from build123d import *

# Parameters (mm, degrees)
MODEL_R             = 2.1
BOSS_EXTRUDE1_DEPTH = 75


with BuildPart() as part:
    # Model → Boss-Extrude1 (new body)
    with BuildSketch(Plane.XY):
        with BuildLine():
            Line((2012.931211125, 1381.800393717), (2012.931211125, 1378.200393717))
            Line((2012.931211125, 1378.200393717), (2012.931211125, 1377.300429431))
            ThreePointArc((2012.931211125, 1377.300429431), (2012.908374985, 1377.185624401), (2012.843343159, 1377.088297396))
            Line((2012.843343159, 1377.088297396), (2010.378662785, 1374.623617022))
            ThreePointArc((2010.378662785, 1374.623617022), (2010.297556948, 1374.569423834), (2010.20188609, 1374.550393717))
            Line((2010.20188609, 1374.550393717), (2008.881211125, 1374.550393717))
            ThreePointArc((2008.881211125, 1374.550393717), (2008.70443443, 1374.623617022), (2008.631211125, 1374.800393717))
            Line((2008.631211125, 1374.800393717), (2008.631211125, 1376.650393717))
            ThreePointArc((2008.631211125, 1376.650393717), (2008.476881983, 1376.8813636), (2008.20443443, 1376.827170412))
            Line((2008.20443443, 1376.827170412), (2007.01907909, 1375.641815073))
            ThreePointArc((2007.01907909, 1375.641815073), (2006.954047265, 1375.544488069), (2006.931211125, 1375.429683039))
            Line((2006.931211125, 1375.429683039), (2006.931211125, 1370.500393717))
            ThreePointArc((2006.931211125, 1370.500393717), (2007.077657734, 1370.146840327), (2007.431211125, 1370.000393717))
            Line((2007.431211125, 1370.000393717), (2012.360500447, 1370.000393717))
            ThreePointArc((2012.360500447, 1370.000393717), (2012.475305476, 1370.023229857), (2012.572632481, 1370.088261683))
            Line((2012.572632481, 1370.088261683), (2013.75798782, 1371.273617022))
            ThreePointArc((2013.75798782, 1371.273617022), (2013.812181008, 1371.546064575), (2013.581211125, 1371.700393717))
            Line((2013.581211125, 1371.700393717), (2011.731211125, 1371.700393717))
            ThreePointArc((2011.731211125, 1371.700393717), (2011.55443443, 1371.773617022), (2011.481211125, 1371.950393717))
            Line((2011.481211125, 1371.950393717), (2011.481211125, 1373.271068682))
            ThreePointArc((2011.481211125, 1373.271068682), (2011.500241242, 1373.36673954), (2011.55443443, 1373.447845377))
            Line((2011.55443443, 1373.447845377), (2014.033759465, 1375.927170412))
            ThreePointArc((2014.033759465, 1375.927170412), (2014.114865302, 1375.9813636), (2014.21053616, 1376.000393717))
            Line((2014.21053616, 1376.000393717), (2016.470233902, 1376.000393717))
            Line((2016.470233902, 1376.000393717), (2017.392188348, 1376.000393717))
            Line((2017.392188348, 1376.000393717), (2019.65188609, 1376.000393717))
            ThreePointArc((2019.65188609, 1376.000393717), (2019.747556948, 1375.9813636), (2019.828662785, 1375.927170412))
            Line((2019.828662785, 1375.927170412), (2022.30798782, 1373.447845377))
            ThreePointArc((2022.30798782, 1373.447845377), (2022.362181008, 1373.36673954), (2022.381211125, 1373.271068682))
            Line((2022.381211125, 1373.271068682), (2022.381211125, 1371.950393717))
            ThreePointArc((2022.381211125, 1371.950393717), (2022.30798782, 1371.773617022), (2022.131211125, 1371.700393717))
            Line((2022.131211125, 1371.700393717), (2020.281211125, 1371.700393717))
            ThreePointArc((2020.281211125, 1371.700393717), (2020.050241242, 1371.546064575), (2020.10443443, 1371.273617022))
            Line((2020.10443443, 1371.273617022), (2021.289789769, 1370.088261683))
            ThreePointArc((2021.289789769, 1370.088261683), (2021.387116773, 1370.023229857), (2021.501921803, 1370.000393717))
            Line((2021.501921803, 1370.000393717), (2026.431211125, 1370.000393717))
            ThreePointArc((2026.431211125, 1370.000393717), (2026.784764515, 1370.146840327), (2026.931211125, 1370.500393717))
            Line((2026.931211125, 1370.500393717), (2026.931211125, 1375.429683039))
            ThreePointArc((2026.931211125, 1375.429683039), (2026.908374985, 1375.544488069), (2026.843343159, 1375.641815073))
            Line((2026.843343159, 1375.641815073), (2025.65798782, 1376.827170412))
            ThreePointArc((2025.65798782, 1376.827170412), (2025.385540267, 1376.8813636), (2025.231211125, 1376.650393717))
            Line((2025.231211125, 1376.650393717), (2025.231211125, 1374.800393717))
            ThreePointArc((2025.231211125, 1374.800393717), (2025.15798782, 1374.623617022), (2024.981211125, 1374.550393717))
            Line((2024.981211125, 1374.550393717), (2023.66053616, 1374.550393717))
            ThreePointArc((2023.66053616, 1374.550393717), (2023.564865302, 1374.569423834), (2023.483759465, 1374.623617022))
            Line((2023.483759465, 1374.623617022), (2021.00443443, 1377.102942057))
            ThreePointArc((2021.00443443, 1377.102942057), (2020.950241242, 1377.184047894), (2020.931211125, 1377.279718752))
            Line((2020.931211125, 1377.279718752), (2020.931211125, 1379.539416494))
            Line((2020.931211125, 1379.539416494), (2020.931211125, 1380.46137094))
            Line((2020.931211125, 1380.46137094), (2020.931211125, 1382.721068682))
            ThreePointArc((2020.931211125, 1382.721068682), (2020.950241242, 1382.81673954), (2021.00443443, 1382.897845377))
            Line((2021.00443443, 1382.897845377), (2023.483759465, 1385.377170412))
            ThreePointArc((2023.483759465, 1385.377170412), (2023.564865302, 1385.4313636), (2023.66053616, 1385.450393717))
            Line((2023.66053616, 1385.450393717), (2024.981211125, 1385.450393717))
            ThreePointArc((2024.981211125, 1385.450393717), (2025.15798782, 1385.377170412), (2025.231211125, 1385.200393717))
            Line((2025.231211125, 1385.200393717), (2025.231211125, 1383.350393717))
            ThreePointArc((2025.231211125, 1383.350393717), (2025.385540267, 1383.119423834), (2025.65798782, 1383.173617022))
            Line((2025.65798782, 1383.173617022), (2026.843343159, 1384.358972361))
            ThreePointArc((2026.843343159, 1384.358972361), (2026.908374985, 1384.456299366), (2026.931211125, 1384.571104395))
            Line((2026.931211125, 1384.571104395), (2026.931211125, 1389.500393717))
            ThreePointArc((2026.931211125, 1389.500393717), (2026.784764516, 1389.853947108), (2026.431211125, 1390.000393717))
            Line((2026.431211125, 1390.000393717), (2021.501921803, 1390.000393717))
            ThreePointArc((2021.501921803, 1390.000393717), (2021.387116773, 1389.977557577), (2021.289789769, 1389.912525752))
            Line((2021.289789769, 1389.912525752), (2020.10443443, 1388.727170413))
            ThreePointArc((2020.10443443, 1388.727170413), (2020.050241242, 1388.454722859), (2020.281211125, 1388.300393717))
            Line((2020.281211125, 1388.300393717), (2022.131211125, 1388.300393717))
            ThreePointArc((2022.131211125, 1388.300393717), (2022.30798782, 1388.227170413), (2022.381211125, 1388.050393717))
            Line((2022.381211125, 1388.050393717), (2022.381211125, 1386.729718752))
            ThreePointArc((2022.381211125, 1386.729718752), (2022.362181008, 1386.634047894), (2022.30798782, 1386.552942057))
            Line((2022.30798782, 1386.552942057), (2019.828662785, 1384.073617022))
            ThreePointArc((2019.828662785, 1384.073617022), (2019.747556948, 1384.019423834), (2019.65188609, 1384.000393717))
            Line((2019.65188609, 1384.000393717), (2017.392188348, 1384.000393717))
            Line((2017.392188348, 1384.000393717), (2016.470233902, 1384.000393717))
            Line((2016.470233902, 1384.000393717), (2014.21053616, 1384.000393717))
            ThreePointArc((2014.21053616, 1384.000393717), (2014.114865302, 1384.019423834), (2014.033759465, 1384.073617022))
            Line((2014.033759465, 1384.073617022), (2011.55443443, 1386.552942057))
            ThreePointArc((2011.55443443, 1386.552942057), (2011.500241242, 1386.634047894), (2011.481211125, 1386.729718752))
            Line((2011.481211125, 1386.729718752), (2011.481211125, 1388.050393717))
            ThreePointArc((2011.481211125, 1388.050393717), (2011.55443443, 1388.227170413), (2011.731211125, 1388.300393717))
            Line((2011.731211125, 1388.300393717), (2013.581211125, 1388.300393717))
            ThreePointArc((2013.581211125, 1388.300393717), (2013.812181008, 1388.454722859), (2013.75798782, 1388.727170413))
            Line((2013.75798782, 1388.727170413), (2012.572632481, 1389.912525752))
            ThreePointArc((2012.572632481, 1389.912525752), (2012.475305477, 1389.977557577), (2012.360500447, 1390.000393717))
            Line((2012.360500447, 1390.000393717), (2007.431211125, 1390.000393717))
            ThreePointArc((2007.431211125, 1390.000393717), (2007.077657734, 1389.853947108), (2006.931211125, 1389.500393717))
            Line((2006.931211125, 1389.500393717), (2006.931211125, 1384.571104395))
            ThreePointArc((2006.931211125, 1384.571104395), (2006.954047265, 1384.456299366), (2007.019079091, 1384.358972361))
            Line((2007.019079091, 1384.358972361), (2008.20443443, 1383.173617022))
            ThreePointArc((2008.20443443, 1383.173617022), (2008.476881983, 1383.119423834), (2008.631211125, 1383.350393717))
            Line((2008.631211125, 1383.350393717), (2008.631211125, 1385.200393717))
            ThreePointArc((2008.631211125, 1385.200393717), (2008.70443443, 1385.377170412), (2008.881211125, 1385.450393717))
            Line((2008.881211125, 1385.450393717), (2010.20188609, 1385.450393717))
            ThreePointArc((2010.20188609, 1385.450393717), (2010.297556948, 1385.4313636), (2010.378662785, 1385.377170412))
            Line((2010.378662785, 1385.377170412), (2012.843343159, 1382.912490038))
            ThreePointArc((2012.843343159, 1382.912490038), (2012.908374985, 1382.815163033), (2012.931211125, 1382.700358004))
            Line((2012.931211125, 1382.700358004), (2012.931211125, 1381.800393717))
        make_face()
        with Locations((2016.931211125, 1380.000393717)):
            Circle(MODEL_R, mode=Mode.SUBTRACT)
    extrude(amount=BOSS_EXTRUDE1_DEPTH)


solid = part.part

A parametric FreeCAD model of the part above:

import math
import FreeCAD as App
import Part
import Sketcher
from FreeCAD import Vector
Q = App.Units.Quantity

doc = App.newDocument("Part")
params = doc.addObject("Spreadsheet::Sheet", "Params")
for row, (alias, value) in enumerate([
    ("sketch1_diameter", "4.2 mm"),
    ("sketch1_radius", "0.3 mm"),
    ("sketch1_radius2", "0.5 mm"),
    ("sketch1_radius3", "0.25 mm"),
    ("sketch1_width", "1.85 mm"),
    ("pad1_length", "75 mm"),
], start=1):
    params.set(f"A{row}", alias)
    params.set(f"B{row}", "=" + value)
    params.setAlias(f"B{row}", alias)

body = doc.addObject("PartDesign::Body", "Body")

sketch1 = body.newObject("Sketcher::SketchObject", "Sketch")
sketch1.AttachmentSupport = (doc.getObject("XY_Plane"), [""])
sketch1.MapMode = "FlatFace"
sketch1.addGeometry(Part.ArcOfCircle(Part.Circle(Vector(2012.631211, 1377.300429, 0), Vector(0, 0, 1), 0.3), math.radians(-45), math.radians(0)), False)
sketch1.addGeometry(Part.LineSegment(Vector(2012.843343, 1377.088297, 0), Vector(2010.378663, 1374.623617, 0)), False)
sketch1.addGeometry(Part.ArcOfCircle(Part.Circle(Vector(2010.201886, 1374.800394, 0), Vector(0, 0, 1), 0.25), math.radians(-90), math.radians(-45)), False)
sketch1.addGeometry(Part.LineSegment(Vector(2010.201886, 1374.550394, 0), Vector(2008.881211, 1374.550394, 0)), False)
sketch1.addGeometry(Part.ArcOfCircle(Part.Circle(Vector(2008.881211, 1374.800394, 0), Vector(0, 0, 1), 0.25), math.radians(-180), math.radians(-90)), False)
sketch1.addGeometry(Part.LineSegment(Vector(2008.631211, 1374.800394, 0), Vector(2008.631211, 1376.650394, 0)), False)
sketch1.addGeometry(Part.ArcOfCircle(Part.Circle(Vector(2008.381211, 1376.650394, 0), Vector(0, 0, 1), 0.25), math.radians(0), math.radians(135)), False)
sketch1.addGeometry(Part.LineSegment(Vector(2008.204434, 1376.82717, 0), Vector(2007.019079, 1375.641815, 0)), False)
sketch1.addGeometry(Part.ArcOfCircle(Part.Circle(Vector(2007.231211, 1375.429683, 0), Vector(0, 0, 1), 0.3), math.radians(135), math.radians(180)), False)
sketch1.addGeometry(Part.LineSegment(Vector(2006.931211, 1375.429683, 0), Vector(2006.931211, 1370.500394, 0)), False)
sketch1.addGeometry(Part.ArcOfCircle(Part.Circle(Vector(2007.431211, 1370.500394, 0), Vector(0, 0, 1), 0.5), math.radians(180), math.radians(270)), False)
sketch1.addGeometry(Part.LineSegment(Vector(2007.431211, 1370.000394, 0), Vector(2012.3605, 1370.000394, 0)), False)
sketch1.addGeometry(Part.ArcOfCircle(Part.Circle(Vector(2012.3605, 1370.300394, 0), Vector(0, 0, 1), 0.3), math.radians(-90), math.radians(-45)), False)
sketch1.addGeometry(Part.LineSegment(Vector(2012.572632, 1370.088262, 0), Vector(2013.757988, 1371.273617, 0)), False)
sketch1.addGeometry(Part.ArcOfCircle(Part.Circle(Vector(2013.581211, 1371.450394, 0), Vector(0, 0, 1), 0.25), math.radians(-45), math.radians(90)), False)
sketch1.addGeometry(Part.LineSegment(Vector(2013.581211, 1371.700394, 0), Vector(2011.731211, 1371.700394, 0)), False)
sketch1.addGeometry(Part.ArcOfCircle(Part.Circle(Vector(2011.731211, 1371.950394, 0), Vector(0, 0, 1), 0.25), math.radians(-180), math.radians(-90)), False)
sketch1.addGeometry(Part.LineSegment(Vector(2011.481211, 1371.950394, 0), Vector(2011.481211, 1373.271069, 0)), False)
sketch1.addGeometry(Part.ArcOfCircle(Part.Circle(Vector(2011.731211, 1373.271069, 0), Vector(0, 0, 1), 0.25), math.radians(135), math.radians(180)), False)
sketch1.addGeometry(Part.LineSegment(Vector(2011.554434, 1373.447845, 0), Vector(2014.033759, 1375.92717, 0)), False)
sketch1.addGeometry(Part.ArcOfCircle(Part.Circle(Vector(2014.210536, 1375.750394, 0), Vector(0, 0, 1), 0.25), math.radians(90), math.radians(135)), False)
sketch1.addGeometry(Part.LineSegment(Vector(2014.210536, 1376.000394, 0), Vector(2019.651886, 1376.000394, 0)), False)
sketch1.addGeometry(Part.ArcOfCircle(Part.Circle(Vector(2019.651886, 1375.750394, 0), Vector(0, 0, 1), 0.25), math.radians(45), math.radians(90)), False)
sketch1.addGeometry(Part.LineSegment(Vector(2019.828663, 1375.92717, 0), Vector(2022.307988, 1373.447845, 0)), False)
sketch1.addGeometry(Part.ArcOfCircle(Part.Circle(Vector(2022.131211, 1373.271069, 0), Vector(0, 0, 1), 0.25), math.radians(0), math.radians(45)), False)
sketch1.addGeometry(Part.LineSegment(Vector(2022.381211, 1373.271069, 0), Vector(2022.381211, 1371.950394, 0)), False)
sketch1.addGeometry(Part.ArcOfCircle(Part.Circle(Vector(2022.131211, 1371.950394, 0), Vector(0, 0, 1), 0.25), math.radians(-90), math.radians(0)), False)
sketch1.addGeometry(Part.LineSegment(Vector(2022.131211, 1371.700394, 0), Vector(2020.281211, 1371.700394, 0)), False)
sketch1.addGeometry(Part.ArcOfCircle(Part.Circle(Vector(2020.281211, 1371.450394, 0), Vector(0, 0, 1), 0.25), math.radians(90), math.radians(225)), False)
sketch1.addGeometry(Part.LineSegment(Vector(2020.104434, 1371.273617, 0), Vector(2021.28979, 1370.088262, 0)), False)
sketch1.addGeometry(Part.ArcOfCircle(Part.Circle(Vector(2021.501922, 1370.300394, 0), Vector(0, 0, 1), 0.3), math.radians(-135.000001), math.radians(-90)), False)
sketch1.addGeometry(Part.LineSegment(Vector(2021.501922, 1370.000394, 0), Vector(2026.431211, 1370.000394, 0)), False)
sketch1.addGeometry(Part.ArcOfCircle(Part.Circle(Vector(2026.431211, 1370.500394, 0), Vector(0, 0, 1), 0.5), math.radians(-90), math.radians(0)), False)
sketch1.addGeometry(Part.LineSegment(Vector(2026.931211, 1370.500394, 0), Vector(2026.931211, 1375.429683, 0)), False)
sketch1.addGeometry(Part.ArcOfCircle(Part.Circle(Vector(2026.631211, 1375.429683, 0), Vector(0, 0, 1), 0.3), math.radians(0), math.radians(45.000001)), False)
sketch1.addGeometry(Part.LineSegment(Vector(2026.843343, 1375.641815, 0), Vector(2025.657988, 1376.82717, 0)), False)
sketch1.addGeometry(Part.ArcOfCircle(Part.Circle(Vector(2025.481211, 1376.650394, 0), Vector(0, 0, 1), 0.25), math.radians(45), math.radians(180)), False)
sketch1.addGeometry(Part.LineSegment(Vector(2025.231211, 1376.650394, 0), Vector(2025.231211, 1374.800394, 0)), False)
sketch1.addGeometry(Part.ArcOfCircle(Part.Circle(Vector(2024.981211, 1374.800394, 0), Vector(0, 0, 1), 0.25), math.radians(-90), math.radians(0)), False)
sketch1.addGeometry(Part.LineSegment(Vector(2024.981211, 1374.550394, 0), Vector(2023.660536, 1374.550394, 0)), False)
sketch1.addGeometry(Part.ArcOfCircle(Part.Circle(Vector(2023.660536, 1374.800394, 0), Vector(0, 0, 1), 0.25), math.radians(-135), math.radians(-90)), False)
sketch1.addGeometry(Part.LineSegment(Vector(2023.483759, 1374.623617, 0), Vector(2021.004434, 1377.102942, 0)), False)
sketch1.addGeometry(Part.ArcOfCircle(Part.Circle(Vector(2021.181211, 1377.279719, 0), Vector(0, 0, 1), 0.25), math.radians(180), math.radians(225)), False)
sketch1.addGeometry(Part.LineSegment(Vector(2020.931211, 1377.279719, 0), Vector(2020.931211, 1382.721069, 0)), False)
sketch1.addGeometry(Part.ArcOfCircle(Part.Circle(Vector(2021.181211, 1382.721069, 0), Vector(0, 0, 1), 0.25), math.radians(135), math.radians(180)), False)
sketch1.addGeometry(Part.LineSegment(Vector(2021.004434, 1382.897845, 0), Vector(2023.483759, 1385.37717, 0)), False)
sketch1.addGeometry(Part.ArcOfCircle(Part.Circle(Vector(2023.660536, 1385.200394, 0), Vector(0, 0, 1), 0.25), math.radians(90), math.radians(135)), False)
sketch1.addGeometry(Part.LineSegment(Vector(2023.660536, 1385.450394, 0), Vector(2024.981211, 1385.450394, 0)), False)
sketch1.addGeometry(Part.ArcOfCircle(Part.Circle(Vector(2024.981211, 1385.200394, 0), Vector(0, 0, 1), 0.25), math.radians(0), math.radians(90)), False)
sketch1.addGeometry(Part.LineSegment(Vector(2025.231211, 1385.200394, 0), Vector(2025.231211, 1383.350394, 0)), False)
sketch1.addGeometry(Part.ArcOfCircle(Part.Circle(Vector(2025.481211, 1383.350394, 0), Vector(0, 0, 1), 0.25), math.radians(180), math.radians(315)), False)
sketch1.addGeometry(Part.LineSegment(Vector(2025.657988, 1383.173617, 0), Vector(2026.843343, 1384.358972, 0)), False)
sketch1.addGeometry(Part.ArcOfCircle(Part.Circle(Vector(2026.631211, 1384.571104, 0), Vector(0, 0, 1), 0.3), math.radians(-45), math.radians(0)), False)
sketch1.addGeometry(Part.LineSegment(Vector(2026.931211, 1384.571104, 0), Vector(2026.931211, 1389.500394, 0)), False)
sketch1.addGeometry(Part.ArcOfCircle(Part.Circle(Vector(2026.431211, 1389.500394, 0), Vector(0, 0, 1), 0.5), math.radians(0), math.radians(90)), False)
sketch1.addGeometry(Part.LineSegment(Vector(2026.431211, 1390.000394, 0), Vector(2021.501922, 1390.000394, 0)), False)
sketch1.addGeometry(Part.ArcOfCircle(Part.Circle(Vector(2021.501922, 1389.700394, 0), Vector(0, 0, 1), 0.3), math.radians(90), math.radians(135)), False)
sketch1.addGeometry(Part.LineSegment(Vector(2021.28979, 1389.912526, 0), Vector(2020.104434, 1388.72717, 0)), False)
sketch1.addGeometry(Part.ArcOfCircle(Part.Circle(Vector(2020.281211, 1388.550394, 0), Vector(0, 0, 1), 0.25), math.radians(135), math.radians(270)), False)
sketch1.addGeometry(Part.LineSegment(Vector(2020.281211, 1388.300394, 0), Vector(2022.131211, 1388.300394, 0)), False)
sketch1.addGeometry(Part.ArcOfCircle(Part.Circle(Vector(2022.131211, 1388.050394, 0), Vector(0, 0, 1), 0.25), math.radians(0), math.radians(90)), False)
sketch1.addGeometry(Part.LineSegment(Vector(2022.381211, 1388.050394, 0), Vector(2022.381211, 1386.729719, 0)), False)
sketch1.addGeometry(Part.ArcOfCircle(Part.Circle(Vector(2022.131211, 1386.729719, 0), Vector(0, 0, 1), 0.25), math.radians(-45), math.radians(0)), False)
sketch1.addGeometry(Part.LineSegment(Vector(2022.307988, 1386.552942, 0), Vector(2019.828663, 1384.073617, 0)), False)
sketch1.addGeometry(Part.ArcOfCircle(Part.Circle(Vector(2019.651886, 1384.250394, 0), Vector(0, 0, 1), 0.25), math.radians(-90), math.radians(-45)), False)
sketch1.addGeometry(Part.LineSegment(Vector(2019.651886, 1384.000394, 0), Vector(2014.210536, 1384.000394, 0)), False)
sketch1.addGeometry(Part.ArcOfCircle(Part.Circle(Vector(2014.210536, 1384.250394, 0), Vector(0, 0, 1), 0.25), math.radians(-135), math.radians(-90)), False)
sketch1.addGeometry(Part.LineSegment(Vector(2014.033759, 1384.073617, 0), Vector(2011.554434, 1386.552942, 0)), False)
sketch1.addGeometry(Part.ArcOfCircle(Part.Circle(Vector(2011.731211, 1386.729719, 0), Vector(0, 0, 1), 0.25), math.radians(180), math.radians(225)), False)
sketch1.addGeometry(Part.LineSegment(Vector(2011.481211, 1386.729719, 0), Vector(2011.481211, 1388.050394, 0)), False)
sketch1.addGeometry(Part.ArcOfCircle(Part.Circle(Vector(2011.731211, 1388.050394, 0), Vector(0, 0, 1), 0.25), math.radians(90), math.radians(180)), False)
sketch1.addGeometry(Part.LineSegment(Vector(2011.731211, 1388.300394, 0), Vector(2013.581211, 1388.300394, 0)), False)
sketch1.addGeometry(Part.ArcOfCircle(Part.Circle(Vector(2013.581211, 1388.550394, 0), Vector(0, 0, 1), 0.25), math.radians(-90), math.radians(45)), False)
sketch1.addGeometry(Part.LineSegment(Vector(2013.757988, 1388.72717, 0), Vector(2012.572632, 1389.912526, 0)), False)
sketch1.addGeometry(Part.ArcOfCircle(Part.Circle(Vector(2012.3605, 1389.700394, 0), Vector(0, 0, 1), 0.3), math.radians(45), math.radians(90)), False)
sketch1.addGeometry(Part.LineSegment(Vector(2012.3605, 1390.000394, 0), Vector(2007.431211, 1390.000394, 0)), False)
sketch1.addGeometry(Part.ArcOfCircle(Part.Circle(Vector(2007.431211, 1389.500394, 0), Vector(0, 0, 1), 0.5), math.radians(90), math.radians(180)), False)
sketch1.addGeometry(Part.LineSegment(Vector(2006.931211, 1389.500394, 0), Vector(2006.931211, 1384.571104, 0)), False)
sketch1.addGeometry(Part.ArcOfCircle(Part.Circle(Vector(2007.231211, 1384.571104, 0), Vector(0, 0, 1), 0.3), math.radians(180), math.radians(225)), False)
sketch1.addGeometry(Part.LineSegment(Vector(2007.019079, 1384.358972, 0), Vector(2008.204434, 1383.173617, 0)), False)
sketch1.addGeometry(Part.ArcOfCircle(Part.Circle(Vector(2008.381211, 1383.350394, 0), Vector(0, 0, 1), 0.25), math.radians(-135), math.radians(0)), False)
sketch1.addGeometry(Part.LineSegment(Vector(2008.631211, 1383.350394, 0), Vector(2008.631211, 1385.200394, 0)), False)
sketch1.addGeometry(Part.ArcOfCircle(Part.Circle(Vector(2008.881211, 1385.200394, 0), Vector(0, 0, 1), 0.25), math.radians(90), math.radians(180)), False)
sketch1.addGeometry(Part.LineSegment(Vector(2008.881211, 1385.450394, 0), Vector(2010.201886, 1385.450394, 0)), False)
sketch1.addGeometry(Part.ArcOfCircle(Part.Circle(Vector(2010.201886, 1385.200394, 0), Vector(0, 0, 1), 0.25), math.radians(45), math.radians(90)), False)
sketch1.addGeometry(Part.LineSegment(Vector(2010.378663, 1385.37717, 0), Vector(2012.843343, 1382.91249, 0)), False)
sketch1.addGeometry(Part.ArcOfCircle(Part.Circle(Vector(2012.631211, 1382.700358, 0), Vector(0, 0, 1), 0.3), math.radians(0), math.radians(45)), False)
sketch1.addGeometry(Part.LineSegment(Vector(2012.931211, 1382.700358, 0), Vector(2012.931211, 1377.300429, 0)), False)
sketch1.addGeometry(Part.Circle(Vector(2016.931211, 1380.000394, 0), Vector(0, 0, 1), 2.1), False)
sketch1.addConstraint(Sketcher.Constraint("Tangent", 0, 1, 1, 1))
sketch1.addConstraint(Sketcher.Constraint("Tangent", 1, 2, 2, 2))
sketch1.addConstraint(Sketcher.Constraint("Tangent", 2, 1, 3, 1))
sketch1.addConstraint(Sketcher.Constraint("Tangent", 3, 2, 4, 2))
sketch1.addConstraint(Sketcher.Constraint("Tangent", 4, 1, 5, 1))
sketch1.addConstraint(Sketcher.Constraint("Tangent", 5, 2, 6, 1))
sketch1.addConstraint(Sketcher.Constraint("Tangent", 6, 2, 7, 1))
sketch1.addConstraint(Sketcher.Constraint("Tangent", 7, 2, 8, 1))
sketch1.addConstraint(Sketcher.Constraint("Tangent", 8, 2, 9, 1))
sketch1.addConstraint(Sketcher.Constraint("Tangent", 9, 2, 10, 1))
sketch1.addConstraint(Sketcher.Constraint("Tangent", 10, 2, 11, 1))
sketch1.addConstraint(Sketcher.Constraint("Tangent", 11, 2, 12, 1))
sketch1.addConstraint(Sketcher.Constraint("Tangent", 12, 2, 13, 1))
sketch1.addConstraint(Sketcher.Constraint("Tangent", 13, 2, 14, 1))
sketch1.addConstraint(Sketcher.Constraint("Tangent", 14, 2, 15, 1))
sketch1.addConstraint(Sketcher.Constraint("Tangent", 15, 2, 16, 2))
sketch1.addConstraint(Sketcher.Constraint("Tangent", 16, 1, 17, 1))
sketch1.addConstraint(Sketcher.Constraint("Tangent", 17, 2, 18, 2))
sketch1.addConstraint(Sketcher.Constraint("Tangent", 18, 1, 19, 1))
sketch1.addConstraint(Sketcher.Constraint("Tangent", 19, 2, 20, 2))
sketch1.addConstraint(Sketcher.Constraint("Tangent", 20, 1, 21, 1))
sketch1.addConstraint(Sketcher.Constraint("Tangent", 21, 2, 22, 2))
sketch1.addConstraint(Sketcher.Constraint("Tangent", 22, 1, 23, 1))
sketch1.addConstraint(Sketcher.Constraint("Tangent", 23, 2, 24, 2))
sketch1.addConstraint(Sketcher.Constraint("Tangent", 24, 1, 25, 1))
sketch1.addConstraint(Sketcher.Constraint("Tangent", 25, 2, 26, 2))
sketch1.addConstraint(Sketcher.Constraint("Tangent", 26, 1, 27, 1))
sketch1.addConstraint(Sketcher.Constraint("Tangent", 27, 2, 28, 1))
sketch1.addConstraint(Sketcher.Constraint("Tangent", 28, 2, 29, 1))
sketch1.addConstraint(Sketcher.Constraint("Tangent", 29, 2, 30, 1))
sketch1.addConstraint(Sketcher.Constraint("Tangent", 30, 2, 31, 1))
sketch1.addConstraint(Sketcher.Constraint("Tangent", 31, 2, 32, 1))
sketch1.addConstraint(Sketcher.Constraint("Tangent", 32, 2, 33, 1))
sketch1.addConstraint(Sketcher.Constraint("Tangent", 33, 2, 34, 1))
sketch1.addConstraint(Sketcher.Constraint("Tangent", 34, 2, 35, 1))
sketch1.addConstraint(Sketcher.Constraint("Tangent", 35, 2, 36, 1))
sketch1.addConstraint(Sketcher.Constraint("Tangent", 36, 2, 37, 1))
sketch1.addConstraint(Sketcher.Constraint("Tangent", 37, 2, 38, 2))
sketch1.addConstraint(Sketcher.Constraint("Tangent", 38, 1, 39, 1))
sketch1.addConstraint(Sketcher.Constraint("Tangent", 39, 2, 40, 2))
sketch1.addConstraint(Sketcher.Constraint("Tangent", 40, 1, 41, 1))
sketch1.addConstraint(Sketcher.Constraint("Tangent", 41, 2, 42, 2))
sketch1.addConstraint(Sketcher.Constraint("Tangent", 42, 1, 43, 1))
sketch1.addConstraint(Sketcher.Constraint("Tangent", 43, 2, 44, 2))
sketch1.addConstraint(Sketcher.Constraint("Tangent", 44, 1, 45, 1))
sketch1.addConstraint(Sketcher.Constraint("Tangent", 45, 2, 46, 2))
sketch1.addConstraint(Sketcher.Constraint("Tangent", 46, 1, 47, 1))
sketch1.addConstraint(Sketcher.Constraint("Tangent", 47, 2, 48, 2))
sketch1.addConstraint(Sketcher.Constraint("Tangent", 48, 1, 49, 1))
sketch1.addConstraint(Sketcher.Constraint("Tangent", 49, 2, 50, 1))
sketch1.addConstraint(Sketcher.Constraint("Tangent", 50, 2, 51, 1))
sketch1.addConstraint(Sketcher.Constraint("Tangent", 51, 2, 52, 1))
sketch1.addConstraint(Sketcher.Constraint("Tangent", 52, 2, 53, 1))
sketch1.addConstraint(Sketcher.Constraint("Tangent", 53, 2, 54, 1))
sketch1.addConstraint(Sketcher.Constraint("Tangent", 54, 2, 55, 1))
sketch1.addConstraint(Sketcher.Constraint("Tangent", 55, 2, 56, 1))
sketch1.addConstraint(Sketcher.Constraint("Tangent", 56, 2, 57, 1))
sketch1.addConstraint(Sketcher.Constraint("Tangent", 57, 2, 58, 1))
sketch1.addConstraint(Sketcher.Constraint("Tangent", 58, 2, 59, 1))
sketch1.addConstraint(Sketcher.Constraint("Tangent", 59, 2, 60, 2))
sketch1.addConstraint(Sketcher.Constraint("Tangent", 60, 1, 61, 1))
sketch1.addConstraint(Sketcher.Constraint("Tangent", 61, 2, 62, 2))
sketch1.addConstraint(Sketcher.Constraint("Tangent", 62, 1, 63, 1))
sketch1.addConstraint(Sketcher.Constraint("Tangent", 63, 2, 64, 2))
sketch1.addConstraint(Sketcher.Constraint("Tangent", 64, 1, 65, 1))
sketch1.addConstraint(Sketcher.Constraint("Tangent", 65, 2, 66, 2))
sketch1.addConstraint(Sketcher.Constraint("Tangent", 66, 1, 67, 1))
sketch1.addConstraint(Sketcher.Constraint("Tangent", 67, 2, 68, 2))
sketch1.addConstraint(Sketcher.Constraint("Tangent", 68, 1, 69, 1))
sketch1.addConstraint(Sketcher.Constraint("Tangent", 69, 2, 70, 2))
sketch1.addConstraint(Sketcher.Constraint("Tangent", 70, 1, 71, 1))
sketch1.addConstraint(Sketcher.Constraint("Tangent", 71, 2, 72, 1))
sketch1.addConstraint(Sketcher.Constraint("Tangent", 72, 2, 73, 1))
sketch1.addConstraint(Sketcher.Constraint("Tangent", 73, 2, 74, 1))
sketch1.addConstraint(Sketcher.Constraint("Tangent", 74, 2, 75, 1))
sketch1.addConstraint(Sketcher.Constraint("Tangent", 75, 2, 76, 1))
sketch1.addConstraint(Sketcher.Constraint("Tangent", 76, 2, 77, 1))
sketch1.addConstraint(Sketcher.Constraint("Tangent", 77, 2, 78, 1))
sketch1.addConstraint(Sketcher.Constraint("Tangent", 78, 2, 79, 1))
sketch1.addConstraint(Sketcher.Constraint("Tangent", 79, 2, 80, 1))
sketch1.addConstraint(Sketcher.Constraint("Tangent", 80, 2, 81, 1))
sketch1.addConstraint(Sketcher.Constraint("Tangent", 81, 2, 82, 2))
sketch1.addConstraint(Sketcher.Constraint("Tangent", 82, 1, 83, 1))
sketch1.addConstraint(Sketcher.Constraint("Tangent", 83, 2, 84, 2))
sketch1.addConstraint(Sketcher.Constraint("Tangent", 84, 1, 85, 1))
sketch1.addConstraint(Sketcher.Constraint("Tangent", 85, 2, 86, 2))
sketch1.addConstraint(Sketcher.Constraint("Tangent", 86, 1, 87, 1))
sketch1.addConstraint(Sketcher.Constraint("Tangent", 87, 2, 0, 2))
sketch1.addConstraint(Sketcher.Constraint("Horizontal", 3))
sketch1.addConstraint(Sketcher.Constraint("Vertical", 5))
sketch1.addConstraint(Sketcher.Constraint("Vertical", 9))
sketch1.addConstraint(Sketcher.Constraint("Horizontal", 11))
sketch1.addConstraint(Sketcher.Constraint("Horizontal", 15))
sketch1.addConstraint(Sketcher.Constraint("Vertical", 17))
sketch1.addConstraint(Sketcher.Constraint("Horizontal", 21))
sketch1.addConstraint(Sketcher.Constraint("Vertical", 25))
sketch1.addConstraint(Sketcher.Constraint("Horizontal", 27))
sketch1.addConstraint(Sketcher.Constraint("Horizontal", 31))
sketch1.addConstraint(Sketcher.Constraint("Vertical", 33))
sketch1.addConstraint(Sketcher.Constraint("Vertical", 37))
sketch1.addConstraint(Sketcher.Constraint("Horizontal", 39))
sketch1.addConstraint(Sketcher.Constraint("Vertical", 43))
sketch1.addConstraint(Sketcher.Constraint("Horizontal", 47))
sketch1.addConstraint(Sketcher.Constraint("Vertical", 49))
sketch1.addConstraint(Sketcher.Constraint("Vertical", 53))
sketch1.addConstraint(Sketcher.Constraint("Horizontal", 55))
sketch1.addConstraint(Sketcher.Constraint("Horizontal", 59))
sketch1.addConstraint(Sketcher.Constraint("Vertical", 61))
sketch1.addConstraint(Sketcher.Constraint("Horizontal", 65))
sketch1.addConstraint(Sketcher.Constraint("Vertical", 69))
sketch1.addConstraint(Sketcher.Constraint("Horizontal", 71))
sketch1.addConstraint(Sketcher.Constraint("Horizontal", 75))
sketch1.addConstraint(Sketcher.Constraint("Vertical", 77))
sketch1.addConstraint(Sketcher.Constraint("Vertical", 81))
sketch1.addConstraint(Sketcher.Constraint("Horizontal", 83))
sketch1.addConstraint(Sketcher.Constraint("Vertical", 87))
sketch1.addConstraint(Sketcher.Constraint("Equal", 2, 4))
sketch1.addConstraint(Sketcher.Constraint("Equal", 4, 6))
sketch1.addConstraint(Sketcher.Constraint("Equal", 0, 8))
sketch1.addConstraint(Sketcher.Constraint("Equal", 8, 12))
sketch1.addConstraint(Sketcher.Constraint("Equal", 6, 14))
sketch1.addConstraint(Sketcher.Constraint("Equal", 14, 16))
sketch1.addConstraint(Sketcher.Constraint("Equal", 16, 18))
sketch1.addConstraint(Sketcher.Constraint("Equal", 18, 20))
sketch1.addConstraint(Sketcher.Constraint("Equal", 20, 22))
sketch1.addConstraint(Sketcher.Constraint("Equal", 22, 24))
sketch1.addConstraint(Sketcher.Constraint("Equal", 24, 26))
sketch1.addConstraint(Sketcher.Constraint("Equal", 26, 28))
sketch1.addConstraint(Sketcher.Constraint("Equal", 12, 30))
sketch1.addConstraint(Sketcher.Constraint("Equal", 10, 32))
sketch1.addConstraint(Sketcher.Constraint("Equal", 30, 34))
sketch1.addConstraint(Sketcher.Constraint("Equal", 28, 36))
sketch1.addConstraint(Sketcher.Constraint("Equal", 36, 38))
sketch1.addConstraint(Sketcher.Constraint("Equal", 38, 40))
sketch1.addConstraint(Sketcher.Constraint("Equal", 40, 42))
sketch1.addConstraint(Sketcher.Constraint("Equal", 42, 44))
sketch1.addConstraint(Sketcher.Constraint("Equal", 44, 46))
sketch1.addConstraint(Sketcher.Constraint("Equal", 46, 48))
sketch1.addConstraint(Sketcher.Constraint("Equal", 48, 50))
sketch1.addConstraint(Sketcher.Constraint("Equal", 34, 52))
sketch1.addConstraint(Sketcher.Constraint("Equal", 32, 54))
sketch1.addConstraint(Sketcher.Constraint("Equal", 52, 56))
sketch1.addConstraint(Sketcher.Constraint("Equal", 50, 58))
sketch1.addConstraint(Sketcher.Constraint("Equal", 58, 60))
sketch1.addConstraint(Sketcher.Constraint("Equal", 60, 62))
sketch1.addConstraint(Sketcher.Constraint("Equal", 62, 64))
sketch1.addConstraint(Sketcher.Constraint("Equal", 64, 66))
sketch1.addConstraint(Sketcher.Constraint("Equal", 66, 68))
sketch1.addConstraint(Sketcher.Constraint("Equal", 68, 70))
sketch1.addConstraint(Sketcher.Constraint("Equal", 70, 72))
sketch1.addConstraint(Sketcher.Constraint("Equal", 56, 74))
sketch1.addConstraint(Sketcher.Constraint("Equal", 54, 76))
sketch1.addConstraint(Sketcher.Constraint("Equal", 74, 78))
sketch1.addConstraint(Sketcher.Constraint("Equal", 72, 80))
sketch1.addConstraint(Sketcher.Constraint("Equal", 80, 82))
sketch1.addConstraint(Sketcher.Constraint("Equal", 82, 84))
sketch1.addConstraint(Sketcher.Constraint("Equal", 78, 86))
sketch1.addConstraint(Sketcher.Constraint("Parallel", 1, 7))
sketch1.addConstraint(Sketcher.Constraint("Parallel", 7, 13))
sketch1.addConstraint(Sketcher.Constraint("Parallel", 13, 19))
sketch1.addConstraint(Sketcher.Constraint("Perpendicular", 19, 23))
sketch1.addConstraint(Sketcher.Constraint("Parallel", 23, 29))
sketch1.addConstraint(Sketcher.Constraint("Parallel", 29, 35))
sketch1.addConstraint(Sketcher.Constraint("Parallel", 35, 41))
sketch1.addConstraint(Sketcher.Constraint("Perpendicular", 41, 45))
sketch1.addConstraint(Sketcher.Constraint("Parallel", 45, 51))
sketch1.addConstraint(Sketcher.Constraint("Parallel", 51, 57))
sketch1.addConstraint(Sketcher.Constraint("Parallel", 57, 63))
sketch1.addConstraint(Sketcher.Constraint("Perpendicular", 63, 67))
sketch1.addConstraint(Sketcher.Constraint("Parallel", 67, 73))
sketch1.addConstraint(Sketcher.Constraint("Parallel", 73, 79))
sketch1.addConstraint(Sketcher.Constraint("Parallel", 79, 85))
sketch1.addConstraint(Sketcher.Constraint("Horizontal", 18, 3, 24, 3))
sketch1.addConstraint(Sketcher.Constraint("Horizontal", 16, 3, 26, 3))
sketch1.addConstraint(Sketcher.Constraint("Horizontal", 12, 3, 30, 3))
sketch1.addConstraint(Sketcher.Constraint("Horizontal", 8, 3, 34, 3))
sketch1.addConstraint(Sketcher.Constraint("Horizontal", 6, 3, 36, 3))
sketch1.addConstraint(Sketcher.Constraint("Horizontal", 4, 3, 38, 3))
sketch1.addConstraint(Sketcher.Constraint("Horizontal", 62, 3, 68, 3))
sketch1.addConstraint(Sketcher.Constraint("Horizontal", 60, 3, 70, 3))
sketch1.addConstraint(Sketcher.Constraint("Horizontal", 56, 3, 74, 3))
sketch1.addConstraint(Sketcher.Constraint("Horizontal", 52, 3, 78, 3))
sketch1.addConstraint(Sketcher.Constraint("Horizontal", 50, 3, 80, 3))
sketch1.addConstraint(Sketcher.Constraint("Horizontal", 48, 3, 82, 3))
sketch1.addConstraint(Sketcher.Constraint("Horizontal", 19, 2, 22, 1))
sketch1.addConstraint(Sketcher.Constraint("Vertical", 40, 3, 46, 3))
sketch1.addConstraint(Sketcher.Constraint("Vertical", 38, 3, 48, 3))
sketch1.addConstraint(Sketcher.Constraint("Vertical", 34, 3, 52, 3))
sketch1.addConstraint(Sketcher.Constraint("Vertical", 30, 3, 56, 3))
sketch1.addConstraint(Sketcher.Constraint("Vertical", 28, 3, 58, 3))
sketch1.addConstraint(Sketcher.Constraint("Vertical", 26, 3, 60, 3))
sketch1.addConstraint(Sketcher.Constraint("Vertical", 22, 3, 64, 3))
sketch1.addConstraint(Sketcher.Constraint("Vertical", 20, 3, 66, 3))
sketch1.addConstraint(Sketcher.Constraint("Vertical", 14, 3, 72, 3))
sketch1.addConstraint(Sketcher.Constraint("Vertical", 10, 3, 76, 3))
sketch1.addConstraint(Sketcher.Constraint("Vertical", 2, 3, 84, 3))
sketch1.addConstraint(Sketcher.Constraint("Equal", 15, 27))
sketch1.addConstraint(Sketcher.Constraint("Equal", 11, 31))
sketch1.addConstraint(Sketcher.Constraint("Equal", 3, 39))
sketch1.addConstraint(Sketcher.Constraint("Equal", 71, 5))
sketch1.addConstraint(Sketcher.Constraint("Equal", 75, 9))
sketch1.addConstraint(Sketcher.Constraint("Equal", 83, 17))
sketch1.addConstraint(Sketcher.Constraint("Equal", 65, 43))
sketch1.addConstraint(Sketcher.Constraint("Equal", 37, 49))
sketch1.addConstraint(Sketcher.Constraint("Equal", 33, 53))
sketch1.addConstraint(Sketcher.Constraint("Equal", 25, 61))
sketch1.addConstraint(Sketcher.Constraint("Equal", 7, 13))
sketch1.addConstraint(Sketcher.Constraint("Equal", 23, 41))
sketch1.addConstraint(Sketcher.Constraint("Diameter", 88, Q("4.2 mm")))
sketch1.addConstraint(Sketcher.Constraint("Radius", 0, Q("0.3 mm")))
sketch1.addConstraint(Sketcher.Constraint("Radius", 10, Q("0.5 mm")))
sketch1.addConstraint(Sketcher.Constraint("Radius", 2, Q("0.25 mm")))
sketch1.addConstraint(Sketcher.Constraint("DistanceX", 15, 2, 15, 1, Q("1.85 mm")))
sketch1.addConstraint(Sketcher.Constraint("DistanceX", 11, 1, 11, 2, Q("4.929289 mm")))
sketch1.addConstraint(Sketcher.Constraint("DistanceX", 21, 1, 21, 2, Q("5.44135 mm")))
sketch1.addConstraint(Sketcher.Constraint("DistanceY", 87, 2, 87, 1, Q("5.399929 mm")))
sketch1.addConstraint(Sketcher.Constraint("DistanceX", -1, 1, 12, 3, Q("2012.3605 mm")))
sketch1.addConstraint(Sketcher.Constraint("DistanceX", 3, 2, 3, 1, Q("1.320675 mm")))
sketch1.addConstraint(Sketcher.Constraint("DistanceX", -1, 1, 0, 3, Q("2012.631211 mm")))
sketch1.addConstraint(Sketcher.Constraint("DistanceY", -1, 1, 0, 3, Q("1377.300429 mm")))
sketch1.addConstraint(Sketcher.Constraint("DistanceX", -1, 1, 4, 3, Q("2008.881211 mm")))
sketch1.addConstraint(Sketcher.Constraint("DistanceX", -1, 1, 88, 3, Q("2016.931211 mm")))
sketch1.addConstraint(Sketcher.Constraint("DistanceY", -1, 1, 88, 3, Q("1380.000394 mm")))
sketch1.setExpression("Constraints[208]", "Params.sketch1_diameter")
sketch1.setExpression("Constraints[209]", "Params.sketch1_radius")
sketch1.setExpression("Constraints[210]", "Params.sketch1_radius2")
sketch1.setExpression("Constraints[211]", "Params.sketch1_radius3")
sketch1.setExpression("Constraints[212]", "Params.sketch1_width")
pad1 = body.newObject("PartDesign::Pad", "Pad")
pad1.Profile = sketch1
pad1.setExpression("Length", "Params.pad1_length")

doc.recompute()
